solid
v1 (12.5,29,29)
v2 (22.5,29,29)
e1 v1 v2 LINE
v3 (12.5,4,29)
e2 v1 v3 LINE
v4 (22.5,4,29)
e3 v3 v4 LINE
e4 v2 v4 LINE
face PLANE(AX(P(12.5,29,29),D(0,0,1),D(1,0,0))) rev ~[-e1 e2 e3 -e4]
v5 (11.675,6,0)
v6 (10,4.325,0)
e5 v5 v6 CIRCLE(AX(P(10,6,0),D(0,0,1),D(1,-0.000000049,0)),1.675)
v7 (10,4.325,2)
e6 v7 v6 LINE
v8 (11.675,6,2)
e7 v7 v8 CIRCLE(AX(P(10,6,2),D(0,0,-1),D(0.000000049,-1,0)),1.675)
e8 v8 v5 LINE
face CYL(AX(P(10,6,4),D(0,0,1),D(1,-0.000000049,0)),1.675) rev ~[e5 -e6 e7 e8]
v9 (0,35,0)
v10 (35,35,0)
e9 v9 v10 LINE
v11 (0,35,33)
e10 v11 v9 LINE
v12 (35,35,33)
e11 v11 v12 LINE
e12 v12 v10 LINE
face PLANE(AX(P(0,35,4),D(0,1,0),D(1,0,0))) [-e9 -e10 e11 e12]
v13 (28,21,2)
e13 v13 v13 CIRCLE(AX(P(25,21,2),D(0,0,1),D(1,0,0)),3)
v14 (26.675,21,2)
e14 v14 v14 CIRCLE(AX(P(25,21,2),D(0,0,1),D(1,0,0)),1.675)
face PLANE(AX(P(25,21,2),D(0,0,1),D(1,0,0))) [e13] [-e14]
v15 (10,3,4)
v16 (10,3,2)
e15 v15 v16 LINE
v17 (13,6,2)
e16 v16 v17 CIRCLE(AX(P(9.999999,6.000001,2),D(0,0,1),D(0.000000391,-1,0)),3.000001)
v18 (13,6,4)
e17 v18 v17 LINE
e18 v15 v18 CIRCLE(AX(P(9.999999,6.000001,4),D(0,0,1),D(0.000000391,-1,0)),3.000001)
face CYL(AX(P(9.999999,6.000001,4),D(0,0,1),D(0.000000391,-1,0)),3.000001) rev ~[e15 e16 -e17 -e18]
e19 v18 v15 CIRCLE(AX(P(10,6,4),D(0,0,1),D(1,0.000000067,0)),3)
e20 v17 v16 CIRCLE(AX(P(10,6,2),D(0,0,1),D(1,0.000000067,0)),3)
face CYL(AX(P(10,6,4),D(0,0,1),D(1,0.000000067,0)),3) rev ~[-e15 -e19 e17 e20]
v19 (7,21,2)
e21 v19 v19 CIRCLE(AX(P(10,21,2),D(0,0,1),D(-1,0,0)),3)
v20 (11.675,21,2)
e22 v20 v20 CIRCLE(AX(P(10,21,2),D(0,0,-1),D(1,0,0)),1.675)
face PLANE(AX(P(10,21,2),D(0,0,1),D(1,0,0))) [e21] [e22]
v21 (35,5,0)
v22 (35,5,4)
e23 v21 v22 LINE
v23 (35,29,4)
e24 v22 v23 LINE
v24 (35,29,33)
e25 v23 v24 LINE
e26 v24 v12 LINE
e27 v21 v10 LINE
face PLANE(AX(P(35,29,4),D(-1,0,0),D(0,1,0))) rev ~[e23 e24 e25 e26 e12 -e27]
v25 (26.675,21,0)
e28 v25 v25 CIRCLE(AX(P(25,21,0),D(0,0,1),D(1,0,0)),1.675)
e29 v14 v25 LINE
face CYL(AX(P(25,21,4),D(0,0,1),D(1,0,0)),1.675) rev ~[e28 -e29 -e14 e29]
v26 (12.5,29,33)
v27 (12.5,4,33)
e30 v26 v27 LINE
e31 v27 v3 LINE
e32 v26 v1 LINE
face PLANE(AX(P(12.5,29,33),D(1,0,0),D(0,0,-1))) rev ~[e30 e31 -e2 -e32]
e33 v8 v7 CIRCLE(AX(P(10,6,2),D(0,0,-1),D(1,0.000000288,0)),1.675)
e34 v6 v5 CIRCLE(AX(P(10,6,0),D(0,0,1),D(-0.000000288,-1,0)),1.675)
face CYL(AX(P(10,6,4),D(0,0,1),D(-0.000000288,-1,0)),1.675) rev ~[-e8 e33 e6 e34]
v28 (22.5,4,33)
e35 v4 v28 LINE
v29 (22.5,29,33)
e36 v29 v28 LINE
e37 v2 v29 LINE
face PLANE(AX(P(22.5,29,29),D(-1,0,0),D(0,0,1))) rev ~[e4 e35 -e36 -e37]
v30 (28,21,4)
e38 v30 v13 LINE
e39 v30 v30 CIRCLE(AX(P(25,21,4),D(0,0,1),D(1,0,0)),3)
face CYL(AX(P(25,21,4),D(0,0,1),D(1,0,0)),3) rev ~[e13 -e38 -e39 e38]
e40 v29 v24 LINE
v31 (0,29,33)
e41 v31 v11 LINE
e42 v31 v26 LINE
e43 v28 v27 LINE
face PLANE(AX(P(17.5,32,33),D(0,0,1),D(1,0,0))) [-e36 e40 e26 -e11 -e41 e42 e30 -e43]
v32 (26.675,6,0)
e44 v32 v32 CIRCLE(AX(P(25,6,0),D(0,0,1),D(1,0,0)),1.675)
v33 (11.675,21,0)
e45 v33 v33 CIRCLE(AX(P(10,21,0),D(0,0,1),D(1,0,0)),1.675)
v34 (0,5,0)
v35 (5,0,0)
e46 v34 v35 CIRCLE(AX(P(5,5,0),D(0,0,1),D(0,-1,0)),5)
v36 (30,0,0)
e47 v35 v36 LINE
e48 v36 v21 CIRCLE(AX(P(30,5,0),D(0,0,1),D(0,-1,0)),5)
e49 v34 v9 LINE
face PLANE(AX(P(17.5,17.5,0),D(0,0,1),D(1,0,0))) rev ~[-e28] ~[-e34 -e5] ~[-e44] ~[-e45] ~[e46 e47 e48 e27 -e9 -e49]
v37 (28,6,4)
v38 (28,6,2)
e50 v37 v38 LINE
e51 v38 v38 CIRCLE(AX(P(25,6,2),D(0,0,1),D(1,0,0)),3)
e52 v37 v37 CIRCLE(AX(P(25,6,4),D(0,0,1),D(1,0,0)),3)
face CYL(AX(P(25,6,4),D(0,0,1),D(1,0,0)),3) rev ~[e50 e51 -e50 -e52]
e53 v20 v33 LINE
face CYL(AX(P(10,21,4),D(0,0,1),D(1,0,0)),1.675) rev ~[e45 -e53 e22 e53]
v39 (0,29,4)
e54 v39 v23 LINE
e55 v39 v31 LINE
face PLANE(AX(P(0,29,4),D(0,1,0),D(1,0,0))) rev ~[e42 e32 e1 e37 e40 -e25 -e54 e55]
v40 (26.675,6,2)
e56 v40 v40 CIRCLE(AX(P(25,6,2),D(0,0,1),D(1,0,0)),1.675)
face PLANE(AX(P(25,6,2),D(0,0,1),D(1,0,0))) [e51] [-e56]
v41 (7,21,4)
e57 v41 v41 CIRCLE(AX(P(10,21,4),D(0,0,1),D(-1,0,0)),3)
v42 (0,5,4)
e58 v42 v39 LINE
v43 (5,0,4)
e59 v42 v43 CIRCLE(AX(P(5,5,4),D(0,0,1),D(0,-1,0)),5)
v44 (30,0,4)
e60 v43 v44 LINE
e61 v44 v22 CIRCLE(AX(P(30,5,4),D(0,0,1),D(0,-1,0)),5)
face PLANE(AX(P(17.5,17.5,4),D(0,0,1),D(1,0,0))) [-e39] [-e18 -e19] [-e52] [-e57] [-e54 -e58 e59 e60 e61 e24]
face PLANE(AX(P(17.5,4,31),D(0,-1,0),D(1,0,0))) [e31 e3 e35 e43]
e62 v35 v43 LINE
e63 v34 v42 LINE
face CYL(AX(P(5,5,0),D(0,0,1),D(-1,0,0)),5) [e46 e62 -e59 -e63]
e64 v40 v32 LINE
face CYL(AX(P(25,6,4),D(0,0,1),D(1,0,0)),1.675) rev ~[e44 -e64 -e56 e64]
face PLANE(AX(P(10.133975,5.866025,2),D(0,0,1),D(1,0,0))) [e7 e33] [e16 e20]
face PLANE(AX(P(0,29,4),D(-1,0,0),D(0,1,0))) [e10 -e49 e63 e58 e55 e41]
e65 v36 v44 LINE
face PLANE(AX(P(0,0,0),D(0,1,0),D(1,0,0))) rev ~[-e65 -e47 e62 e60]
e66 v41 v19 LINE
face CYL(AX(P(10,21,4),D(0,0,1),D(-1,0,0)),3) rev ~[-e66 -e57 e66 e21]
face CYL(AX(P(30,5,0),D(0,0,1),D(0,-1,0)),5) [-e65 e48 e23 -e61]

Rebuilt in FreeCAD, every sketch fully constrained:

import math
import FreeCAD as App
import Part
import Sketcher
Q = App.Units.Quantity


def edges_at(feature, points):
    """Names of the edges that pass closest to the given points."""
    edges = feature.Shape.Edges
    near = lambda p: min(range(len(edges)), key=lambda i: edges[i].distToShape(Part.Vertex(*p))[0])
    return sorted({f"Edge{near(p) + 1}" for p in points})

doc = App.newDocument("Part")
body = doc.addObject("PartDesign::Body", "Body")

# Sketch on XY plane
sketch1 = body.newObject("Sketcher::SketchObject", "Sketch")
sketch1.AttachmentSupport = (doc.getObject("XY_Plane"), [""])
sketch1.MapMode = "FlatFace"
sketch1.addGeometry([
    Part.LineSegment(App.Vector(0, 35, 0), App.Vector(0, 0, 0)),
    Part.LineSegment(App.Vector(0, 0, 0), App.Vector(35, 0, 0)),
    Part.LineSegment(App.Vector(35, 0, 0), App.Vector(35, 35, 0)),
    Part.LineSegment(App.Vector(35, 35, 0), App.Vector(0, 35, 0)),
], False)
sketch1.addConstraint([
    Sketcher.Constraint("Coincident", 0, 2, 1, 1),
    Sketcher.Constraint("Coincident", 1, 2, 2, 1),
    Sketcher.Constraint("Coincident", 2, 2, 3, 1),
    Sketcher.Constraint("Coincident", 3, 2, 0, 1),
    Sketcher.Constraint("Vertical", 0),
    Sketcher.Constraint("Horizontal", 1),
    Sketcher.Constraint("Vertical", 2),
    Sketcher.Constraint("Horizontal", 3),
    Sketcher.Constraint("Coincident", 0, 2, -1, 1),
    Sketcher.Constraint("Equal", 3, 0),
    Sketcher.Constraint("DistanceX", 1, 1, 1, 2, Q("35 mm")),
])
pad1 = body.newObject("PartDesign::Pad", "Pad")
pad1.Profile = sketch1
pad1.Length = 4

# Sketch on XY plane
sketch2 = body.newObject("Sketcher::SketchObject", "Sketch001")
sketch2.AttachmentSupport = (doc.getObject("XY_Plane"), [""])
sketch2.MapMode = "FlatFace"
sketch2.AttachmentOffset = App.Placement(App.Vector(0, 0, 4), App.Rotation())
sketch2.addGeometry([
    Part.Circle(App.Vector(10, 21, 0), App.Vector(0, 0, 1), 3),  # 0
    Part.Circle(App.Vector(10, 21, 0), App.Vector(0, 0, 1), 1.675),  # 1
    Part.Circle(App.Vector(25, 21, 0), App.Vector(0, 0, 1), 3),  # 2
    Part.Circle(App.Vector(25, 21, 0), App.Vector(0, 0, 1), 1.675),  # 3
    Part.Circle(App.Vector(25, 6, 0), App.Vector(0, 0, 1), 3),  # 4
    Part.Circle(App.Vector(25, 6, 0), App.Vector(0, 0, 1), 1.675),  # 5
    Part.ArcOfCircle(Part.Circle(App.Vector(10, 6, 0), App.Vector(0, 0, 1), 3), math.radians(0.000004), math.radians(269.999996)),  # 6
    Part.ArcOfCircle(Part.Circle(App.Vector(9.999999, 6.000001, 0), App.Vector(0, 0, 1), 3.000001), math.radians(-89.999978), math.radians(-0.000022)),  # 7
    Part.ArcOfCircle(Part.Circle(App.Vector(10, 6, 0), App.Vector(0, 0, 1), 1.675), math.radians(-0.000003), math.radians(270.000003)),  # 8
    Part.ArcOfCircle(Part.Circle(App.Vector(10, 6, 0), App.Vector(0, 0, 1), 1.675), math.radians(-90.000017), math.radians(0.000017)),  # 9
], False)
sketch2.addConstraint([
    Sketcher.Constraint("Tangent", 6, 1, 7, 2),
    Sketcher.Constraint("Coincident", 7, 1, 6, 2),
    Sketcher.Constraint("Tangent", 8, 1, 9, 2),
    Sketcher.Constraint("Coincident", 9, 1, 8, 2),
    Sketcher.Constraint("Coincident", 1, 3, 0, 3),
    Sketcher.Constraint("Coincident", 3, 3, 2, 3),
    Sketcher.Constraint("Coincident", 5, 3, 4, 3),
    Sketcher.Constraint("Coincident", 8, 3, 6, 3),
    Sketcher.Constraint("Equal", 0, 2),
    Sketcher.Constraint("Equal", 1, 3),
    Sketcher.Constraint("Equal", 2, 4),
    Sketcher.Constraint("Equal", 3, 5),
    Sketcher.Constraint("Equal", 4, 6),
    Sketcher.Constraint("Equal", 5, 8),
    Sketcher.Constraint("Horizontal", 1, 3, 2, 3),
    Sketcher.Constraint("Horizontal", 5, 3, 6, 3),
    Sketcher.Constraint("Horizontal", 9, 3, 6, 1),
    Sketcher.Constraint("Horizontal", 6, 1, 8, 1),
    Sketcher.Constraint("Vertical", 3, 3, 4, 3),
    Sketcher.Constraint("Vertical", 1, 3, 6, 3),
    Sketcher.Constraint("Vertical", 9, 3, 7, 1),
    Sketcher.Constraint("Vertical", 7, 1, 9, 1),
    Sketcher.Constraint("Diameter", 0, Q("6 mm")),
    Sketcher.Constraint("Diameter", 1, Q("3.35 mm")),
    Sketcher.Constraint("DistanceX", -1, 1, 0, 3, Q("10 mm")),
    Sketcher.Constraint("DistanceY", -1, 1, 0, 3, Q("21 mm")),
    Sketcher.Constraint("DistanceX", -1, 1, 2, 3, Q("25 mm")),
    Sketcher.Constraint("DistanceY", -1, 1, 4, 3, Q("6 mm")),
])
pocket1 = body.newObject("PartDesign::Pocket", "Pocket")
pocket1.Profile = sketch2
pocket1.Length = 2
doc.recompute()

fillet = body.newObject("PartDesign::Fillet", "Fillet")
fillet.Base = (pocket1, edges_at(pocket1, [(0, 0, 2), (35, 0, 2)]))
fillet.Radius = 5

# Sketch on XY plane
sketch3 = body.newObject("Sketcher::SketchObject", "Sketch002")
sketch3.AttachmentSupport = (doc.getObject("XY_Plane"), [""])
sketch3.MapMode = "FlatFace"
sketch3.AttachmentOffset = App.Placement(App.Vector(0, 0, 4), App.Rotation())
sketch3.addGeometry([
    Part.Circle(App.Vector(10, 21, 0), App.Vector(0, 0, 1), 1.675),  # 0
    Part.Circle(App.Vector(25, 21, 0), App.Vector(0, 0, 1), 1.675),  # 1
    Part.Circle(App.Vector(25, 6, 0), App.Vector(0, 0, 1), 1.675),  # 2
    Part.ArcOfCircle(Part.Circle(App.Vector(10, 6, 0), App.Vector(0, 0, 1), 1.675), math.radians(-0.000003), math.radians(270.000003)),  # 3
    Part.ArcOfCircle(Part.Circle(App.Vector(10, 6, 0), App.Vector(0, 0, 1), 1.675), math.radians(-90.000017), math.radians(0.000017)),  # 4
], False)
sketch3.addConstraint([
    Sketcher.Constraint("Tangent", 3, 1, 4, 2),
    Sketcher.Constraint("Coincident", 4, 1, 3, 2),
    Sketcher.Constraint("Equal", 0, 1),
    Sketcher.Constraint("Equal", 1, 2),
    Sketcher.Constraint("Equal", 2, 3),
    Sketcher.Constraint("Horizontal", 0, 3, 1, 3),
    Sketcher.Constraint("Horizontal", 2, 3, 3, 3),
    Sketcher.Constraint("Horizontal", 4, 3, 3, 1),
    Sketcher.Constraint("Vertical", 1, 3, 2, 3),
    Sketcher.Constraint("Vertical", 0, 3, 3, 3),
    Sketcher.Constraint("Vertical", 3, 3, 4, 1),
    Sketcher.Constraint("Diameter", 0, Q("3.35 mm")),
    Sketcher.Constraint("DistanceX", -1, 1, 0, 3, Q("10 mm")),
    Sketcher.Constraint("DistanceY", -1, 1, 0, 3, Q("21 mm")),
    Sketcher.Constraint("DistanceX", -1, 1, 1, 3, Q("25 mm")),
    Sketcher.Constraint("DistanceY", -1, 1, 2, 3, Q("6 mm")),
])
pocket2 = body.newObject("PartDesign::Pocket", "Pocket001")
pocket2.Profile = sketch3
pocket2.Length = 25

# Sketch on XY plane
sketch4 = body.newObject("Sketcher::SketchObject", "Sketch003")
sketch4.AttachmentSupport = (doc.getObject("XY_Plane"), [""])
sketch4.MapMode = "FlatFace"
sketch4.AttachmentOffset = App.Placement(App.Vector(0, 0, 4), App.Rotation())
sketch4.addGeometry([
    Part.LineSegment(App.Vector(0, 35, 0), App.Vector(0, 29, 0)),
    Part.LineSegment(App.Vector(0, 29, 0), App.Vector(35, 29, 0)),
    Part.LineSegment(App.Vector(35, 29, 0), App.Vector(35, 35, 0)),
    Part.LineSegment(App.Vector(35, 35, 0), App.Vector(0, 35, 0)),
], False)
sketch4.addConstraint([
    Sketcher.Constraint("Coincident", 0, 2, 1, 1),
    Sketcher.Constraint("Coincident", 1, 2, 2, 1),
    Sketcher.Constraint("Coincident", 2, 2, 3, 1),
    Sketcher.Constraint("Coincident", 3, 2, 0, 1),
    Sketcher.Constraint("Vertical", 0),
    Sketcher.Constraint("Horizontal", 1),
    Sketcher.Constraint("Vertical", 2),
    Sketcher.Constraint("Horizontal", 3),
    Sketcher.Constraint("PointOnObject", 0, 2, -2),
    Sketcher.Constraint("DistanceX", 1, 1, 1, 2, Q("35 mm")),
    Sketcher.Constraint("DistanceY", 0, 2, 0, 1, Q("6 mm")),
    Sketcher.Constraint("DistanceY", -1, 1, 0, 2, Q("29 mm")),
])
pad2 = body.newObject("PartDesign::Pad", "Pad001")
pad2.Profile = sketch4
pad2.Length = 29

# Sketch on XZ plane
sketch5 = body.newObject("Sketcher::SketchObject", "Sketch004")
sketch5.AttachmentSupport = (doc.getObject("XZ_Plane"), [""])
sketch5.MapMode = "FlatFace"
sketch5.AttachmentOffset = App.Placement(App.Vector(0, 0, -29), App.Rotation())
sketch5.addGeometry([
    Part.LineSegment(App.Vector(22.5, 33, 0), App.Vector(12.5, 33, 0)),
    Part.LineSegment(App.Vector(12.5, 33, 0), App.Vector(12.5, 29, 0)),
    Part.LineSegment(App.Vector(12.5, 29, 0), App.Vector(22.5, 29, 0)),
    Part.LineSegment(App.Vector(22.5, 29, 0), App.Vector(22.5, 33, 0)),
], False)
sketch5.addConstraint([
    Sketcher.Constraint("Coincident", 0, 2, 1, 1),
    Sketcher.Constraint("Coincident", 1, 2, 2, 1),
    Sketcher.Constraint("Coincident", 2, 2, 3, 1),
    Sketcher.Constraint("Coincident", 3, 2, 0, 1),
    Sketcher.Constraint("Horizontal", 0),
    Sketcher.Constraint("Vertical", 1),
    Sketcher.Constraint("Horizontal", 2),
    Sketcher.Constraint("Vertical", 3),
    Sketcher.Constraint("DistanceX", 0, 2, 0, 1, Q("10 mm")),
    Sketcher.Constraint("DistanceY", 1, 2, 1, 1, Q("4 mm")),
    Sketcher.Constraint("DistanceY", -1, 1, 0, 2, Q("33 mm")),
    Sketcher.Constraint("DistanceX", -1, 1, 0, 2, Q("12.5 mm")),
])
pad3 = body.newObject("PartDesign::Pad", "Pad002")
pad3.Profile = sketch5
pad3.Length = 25

doc.recompute()
